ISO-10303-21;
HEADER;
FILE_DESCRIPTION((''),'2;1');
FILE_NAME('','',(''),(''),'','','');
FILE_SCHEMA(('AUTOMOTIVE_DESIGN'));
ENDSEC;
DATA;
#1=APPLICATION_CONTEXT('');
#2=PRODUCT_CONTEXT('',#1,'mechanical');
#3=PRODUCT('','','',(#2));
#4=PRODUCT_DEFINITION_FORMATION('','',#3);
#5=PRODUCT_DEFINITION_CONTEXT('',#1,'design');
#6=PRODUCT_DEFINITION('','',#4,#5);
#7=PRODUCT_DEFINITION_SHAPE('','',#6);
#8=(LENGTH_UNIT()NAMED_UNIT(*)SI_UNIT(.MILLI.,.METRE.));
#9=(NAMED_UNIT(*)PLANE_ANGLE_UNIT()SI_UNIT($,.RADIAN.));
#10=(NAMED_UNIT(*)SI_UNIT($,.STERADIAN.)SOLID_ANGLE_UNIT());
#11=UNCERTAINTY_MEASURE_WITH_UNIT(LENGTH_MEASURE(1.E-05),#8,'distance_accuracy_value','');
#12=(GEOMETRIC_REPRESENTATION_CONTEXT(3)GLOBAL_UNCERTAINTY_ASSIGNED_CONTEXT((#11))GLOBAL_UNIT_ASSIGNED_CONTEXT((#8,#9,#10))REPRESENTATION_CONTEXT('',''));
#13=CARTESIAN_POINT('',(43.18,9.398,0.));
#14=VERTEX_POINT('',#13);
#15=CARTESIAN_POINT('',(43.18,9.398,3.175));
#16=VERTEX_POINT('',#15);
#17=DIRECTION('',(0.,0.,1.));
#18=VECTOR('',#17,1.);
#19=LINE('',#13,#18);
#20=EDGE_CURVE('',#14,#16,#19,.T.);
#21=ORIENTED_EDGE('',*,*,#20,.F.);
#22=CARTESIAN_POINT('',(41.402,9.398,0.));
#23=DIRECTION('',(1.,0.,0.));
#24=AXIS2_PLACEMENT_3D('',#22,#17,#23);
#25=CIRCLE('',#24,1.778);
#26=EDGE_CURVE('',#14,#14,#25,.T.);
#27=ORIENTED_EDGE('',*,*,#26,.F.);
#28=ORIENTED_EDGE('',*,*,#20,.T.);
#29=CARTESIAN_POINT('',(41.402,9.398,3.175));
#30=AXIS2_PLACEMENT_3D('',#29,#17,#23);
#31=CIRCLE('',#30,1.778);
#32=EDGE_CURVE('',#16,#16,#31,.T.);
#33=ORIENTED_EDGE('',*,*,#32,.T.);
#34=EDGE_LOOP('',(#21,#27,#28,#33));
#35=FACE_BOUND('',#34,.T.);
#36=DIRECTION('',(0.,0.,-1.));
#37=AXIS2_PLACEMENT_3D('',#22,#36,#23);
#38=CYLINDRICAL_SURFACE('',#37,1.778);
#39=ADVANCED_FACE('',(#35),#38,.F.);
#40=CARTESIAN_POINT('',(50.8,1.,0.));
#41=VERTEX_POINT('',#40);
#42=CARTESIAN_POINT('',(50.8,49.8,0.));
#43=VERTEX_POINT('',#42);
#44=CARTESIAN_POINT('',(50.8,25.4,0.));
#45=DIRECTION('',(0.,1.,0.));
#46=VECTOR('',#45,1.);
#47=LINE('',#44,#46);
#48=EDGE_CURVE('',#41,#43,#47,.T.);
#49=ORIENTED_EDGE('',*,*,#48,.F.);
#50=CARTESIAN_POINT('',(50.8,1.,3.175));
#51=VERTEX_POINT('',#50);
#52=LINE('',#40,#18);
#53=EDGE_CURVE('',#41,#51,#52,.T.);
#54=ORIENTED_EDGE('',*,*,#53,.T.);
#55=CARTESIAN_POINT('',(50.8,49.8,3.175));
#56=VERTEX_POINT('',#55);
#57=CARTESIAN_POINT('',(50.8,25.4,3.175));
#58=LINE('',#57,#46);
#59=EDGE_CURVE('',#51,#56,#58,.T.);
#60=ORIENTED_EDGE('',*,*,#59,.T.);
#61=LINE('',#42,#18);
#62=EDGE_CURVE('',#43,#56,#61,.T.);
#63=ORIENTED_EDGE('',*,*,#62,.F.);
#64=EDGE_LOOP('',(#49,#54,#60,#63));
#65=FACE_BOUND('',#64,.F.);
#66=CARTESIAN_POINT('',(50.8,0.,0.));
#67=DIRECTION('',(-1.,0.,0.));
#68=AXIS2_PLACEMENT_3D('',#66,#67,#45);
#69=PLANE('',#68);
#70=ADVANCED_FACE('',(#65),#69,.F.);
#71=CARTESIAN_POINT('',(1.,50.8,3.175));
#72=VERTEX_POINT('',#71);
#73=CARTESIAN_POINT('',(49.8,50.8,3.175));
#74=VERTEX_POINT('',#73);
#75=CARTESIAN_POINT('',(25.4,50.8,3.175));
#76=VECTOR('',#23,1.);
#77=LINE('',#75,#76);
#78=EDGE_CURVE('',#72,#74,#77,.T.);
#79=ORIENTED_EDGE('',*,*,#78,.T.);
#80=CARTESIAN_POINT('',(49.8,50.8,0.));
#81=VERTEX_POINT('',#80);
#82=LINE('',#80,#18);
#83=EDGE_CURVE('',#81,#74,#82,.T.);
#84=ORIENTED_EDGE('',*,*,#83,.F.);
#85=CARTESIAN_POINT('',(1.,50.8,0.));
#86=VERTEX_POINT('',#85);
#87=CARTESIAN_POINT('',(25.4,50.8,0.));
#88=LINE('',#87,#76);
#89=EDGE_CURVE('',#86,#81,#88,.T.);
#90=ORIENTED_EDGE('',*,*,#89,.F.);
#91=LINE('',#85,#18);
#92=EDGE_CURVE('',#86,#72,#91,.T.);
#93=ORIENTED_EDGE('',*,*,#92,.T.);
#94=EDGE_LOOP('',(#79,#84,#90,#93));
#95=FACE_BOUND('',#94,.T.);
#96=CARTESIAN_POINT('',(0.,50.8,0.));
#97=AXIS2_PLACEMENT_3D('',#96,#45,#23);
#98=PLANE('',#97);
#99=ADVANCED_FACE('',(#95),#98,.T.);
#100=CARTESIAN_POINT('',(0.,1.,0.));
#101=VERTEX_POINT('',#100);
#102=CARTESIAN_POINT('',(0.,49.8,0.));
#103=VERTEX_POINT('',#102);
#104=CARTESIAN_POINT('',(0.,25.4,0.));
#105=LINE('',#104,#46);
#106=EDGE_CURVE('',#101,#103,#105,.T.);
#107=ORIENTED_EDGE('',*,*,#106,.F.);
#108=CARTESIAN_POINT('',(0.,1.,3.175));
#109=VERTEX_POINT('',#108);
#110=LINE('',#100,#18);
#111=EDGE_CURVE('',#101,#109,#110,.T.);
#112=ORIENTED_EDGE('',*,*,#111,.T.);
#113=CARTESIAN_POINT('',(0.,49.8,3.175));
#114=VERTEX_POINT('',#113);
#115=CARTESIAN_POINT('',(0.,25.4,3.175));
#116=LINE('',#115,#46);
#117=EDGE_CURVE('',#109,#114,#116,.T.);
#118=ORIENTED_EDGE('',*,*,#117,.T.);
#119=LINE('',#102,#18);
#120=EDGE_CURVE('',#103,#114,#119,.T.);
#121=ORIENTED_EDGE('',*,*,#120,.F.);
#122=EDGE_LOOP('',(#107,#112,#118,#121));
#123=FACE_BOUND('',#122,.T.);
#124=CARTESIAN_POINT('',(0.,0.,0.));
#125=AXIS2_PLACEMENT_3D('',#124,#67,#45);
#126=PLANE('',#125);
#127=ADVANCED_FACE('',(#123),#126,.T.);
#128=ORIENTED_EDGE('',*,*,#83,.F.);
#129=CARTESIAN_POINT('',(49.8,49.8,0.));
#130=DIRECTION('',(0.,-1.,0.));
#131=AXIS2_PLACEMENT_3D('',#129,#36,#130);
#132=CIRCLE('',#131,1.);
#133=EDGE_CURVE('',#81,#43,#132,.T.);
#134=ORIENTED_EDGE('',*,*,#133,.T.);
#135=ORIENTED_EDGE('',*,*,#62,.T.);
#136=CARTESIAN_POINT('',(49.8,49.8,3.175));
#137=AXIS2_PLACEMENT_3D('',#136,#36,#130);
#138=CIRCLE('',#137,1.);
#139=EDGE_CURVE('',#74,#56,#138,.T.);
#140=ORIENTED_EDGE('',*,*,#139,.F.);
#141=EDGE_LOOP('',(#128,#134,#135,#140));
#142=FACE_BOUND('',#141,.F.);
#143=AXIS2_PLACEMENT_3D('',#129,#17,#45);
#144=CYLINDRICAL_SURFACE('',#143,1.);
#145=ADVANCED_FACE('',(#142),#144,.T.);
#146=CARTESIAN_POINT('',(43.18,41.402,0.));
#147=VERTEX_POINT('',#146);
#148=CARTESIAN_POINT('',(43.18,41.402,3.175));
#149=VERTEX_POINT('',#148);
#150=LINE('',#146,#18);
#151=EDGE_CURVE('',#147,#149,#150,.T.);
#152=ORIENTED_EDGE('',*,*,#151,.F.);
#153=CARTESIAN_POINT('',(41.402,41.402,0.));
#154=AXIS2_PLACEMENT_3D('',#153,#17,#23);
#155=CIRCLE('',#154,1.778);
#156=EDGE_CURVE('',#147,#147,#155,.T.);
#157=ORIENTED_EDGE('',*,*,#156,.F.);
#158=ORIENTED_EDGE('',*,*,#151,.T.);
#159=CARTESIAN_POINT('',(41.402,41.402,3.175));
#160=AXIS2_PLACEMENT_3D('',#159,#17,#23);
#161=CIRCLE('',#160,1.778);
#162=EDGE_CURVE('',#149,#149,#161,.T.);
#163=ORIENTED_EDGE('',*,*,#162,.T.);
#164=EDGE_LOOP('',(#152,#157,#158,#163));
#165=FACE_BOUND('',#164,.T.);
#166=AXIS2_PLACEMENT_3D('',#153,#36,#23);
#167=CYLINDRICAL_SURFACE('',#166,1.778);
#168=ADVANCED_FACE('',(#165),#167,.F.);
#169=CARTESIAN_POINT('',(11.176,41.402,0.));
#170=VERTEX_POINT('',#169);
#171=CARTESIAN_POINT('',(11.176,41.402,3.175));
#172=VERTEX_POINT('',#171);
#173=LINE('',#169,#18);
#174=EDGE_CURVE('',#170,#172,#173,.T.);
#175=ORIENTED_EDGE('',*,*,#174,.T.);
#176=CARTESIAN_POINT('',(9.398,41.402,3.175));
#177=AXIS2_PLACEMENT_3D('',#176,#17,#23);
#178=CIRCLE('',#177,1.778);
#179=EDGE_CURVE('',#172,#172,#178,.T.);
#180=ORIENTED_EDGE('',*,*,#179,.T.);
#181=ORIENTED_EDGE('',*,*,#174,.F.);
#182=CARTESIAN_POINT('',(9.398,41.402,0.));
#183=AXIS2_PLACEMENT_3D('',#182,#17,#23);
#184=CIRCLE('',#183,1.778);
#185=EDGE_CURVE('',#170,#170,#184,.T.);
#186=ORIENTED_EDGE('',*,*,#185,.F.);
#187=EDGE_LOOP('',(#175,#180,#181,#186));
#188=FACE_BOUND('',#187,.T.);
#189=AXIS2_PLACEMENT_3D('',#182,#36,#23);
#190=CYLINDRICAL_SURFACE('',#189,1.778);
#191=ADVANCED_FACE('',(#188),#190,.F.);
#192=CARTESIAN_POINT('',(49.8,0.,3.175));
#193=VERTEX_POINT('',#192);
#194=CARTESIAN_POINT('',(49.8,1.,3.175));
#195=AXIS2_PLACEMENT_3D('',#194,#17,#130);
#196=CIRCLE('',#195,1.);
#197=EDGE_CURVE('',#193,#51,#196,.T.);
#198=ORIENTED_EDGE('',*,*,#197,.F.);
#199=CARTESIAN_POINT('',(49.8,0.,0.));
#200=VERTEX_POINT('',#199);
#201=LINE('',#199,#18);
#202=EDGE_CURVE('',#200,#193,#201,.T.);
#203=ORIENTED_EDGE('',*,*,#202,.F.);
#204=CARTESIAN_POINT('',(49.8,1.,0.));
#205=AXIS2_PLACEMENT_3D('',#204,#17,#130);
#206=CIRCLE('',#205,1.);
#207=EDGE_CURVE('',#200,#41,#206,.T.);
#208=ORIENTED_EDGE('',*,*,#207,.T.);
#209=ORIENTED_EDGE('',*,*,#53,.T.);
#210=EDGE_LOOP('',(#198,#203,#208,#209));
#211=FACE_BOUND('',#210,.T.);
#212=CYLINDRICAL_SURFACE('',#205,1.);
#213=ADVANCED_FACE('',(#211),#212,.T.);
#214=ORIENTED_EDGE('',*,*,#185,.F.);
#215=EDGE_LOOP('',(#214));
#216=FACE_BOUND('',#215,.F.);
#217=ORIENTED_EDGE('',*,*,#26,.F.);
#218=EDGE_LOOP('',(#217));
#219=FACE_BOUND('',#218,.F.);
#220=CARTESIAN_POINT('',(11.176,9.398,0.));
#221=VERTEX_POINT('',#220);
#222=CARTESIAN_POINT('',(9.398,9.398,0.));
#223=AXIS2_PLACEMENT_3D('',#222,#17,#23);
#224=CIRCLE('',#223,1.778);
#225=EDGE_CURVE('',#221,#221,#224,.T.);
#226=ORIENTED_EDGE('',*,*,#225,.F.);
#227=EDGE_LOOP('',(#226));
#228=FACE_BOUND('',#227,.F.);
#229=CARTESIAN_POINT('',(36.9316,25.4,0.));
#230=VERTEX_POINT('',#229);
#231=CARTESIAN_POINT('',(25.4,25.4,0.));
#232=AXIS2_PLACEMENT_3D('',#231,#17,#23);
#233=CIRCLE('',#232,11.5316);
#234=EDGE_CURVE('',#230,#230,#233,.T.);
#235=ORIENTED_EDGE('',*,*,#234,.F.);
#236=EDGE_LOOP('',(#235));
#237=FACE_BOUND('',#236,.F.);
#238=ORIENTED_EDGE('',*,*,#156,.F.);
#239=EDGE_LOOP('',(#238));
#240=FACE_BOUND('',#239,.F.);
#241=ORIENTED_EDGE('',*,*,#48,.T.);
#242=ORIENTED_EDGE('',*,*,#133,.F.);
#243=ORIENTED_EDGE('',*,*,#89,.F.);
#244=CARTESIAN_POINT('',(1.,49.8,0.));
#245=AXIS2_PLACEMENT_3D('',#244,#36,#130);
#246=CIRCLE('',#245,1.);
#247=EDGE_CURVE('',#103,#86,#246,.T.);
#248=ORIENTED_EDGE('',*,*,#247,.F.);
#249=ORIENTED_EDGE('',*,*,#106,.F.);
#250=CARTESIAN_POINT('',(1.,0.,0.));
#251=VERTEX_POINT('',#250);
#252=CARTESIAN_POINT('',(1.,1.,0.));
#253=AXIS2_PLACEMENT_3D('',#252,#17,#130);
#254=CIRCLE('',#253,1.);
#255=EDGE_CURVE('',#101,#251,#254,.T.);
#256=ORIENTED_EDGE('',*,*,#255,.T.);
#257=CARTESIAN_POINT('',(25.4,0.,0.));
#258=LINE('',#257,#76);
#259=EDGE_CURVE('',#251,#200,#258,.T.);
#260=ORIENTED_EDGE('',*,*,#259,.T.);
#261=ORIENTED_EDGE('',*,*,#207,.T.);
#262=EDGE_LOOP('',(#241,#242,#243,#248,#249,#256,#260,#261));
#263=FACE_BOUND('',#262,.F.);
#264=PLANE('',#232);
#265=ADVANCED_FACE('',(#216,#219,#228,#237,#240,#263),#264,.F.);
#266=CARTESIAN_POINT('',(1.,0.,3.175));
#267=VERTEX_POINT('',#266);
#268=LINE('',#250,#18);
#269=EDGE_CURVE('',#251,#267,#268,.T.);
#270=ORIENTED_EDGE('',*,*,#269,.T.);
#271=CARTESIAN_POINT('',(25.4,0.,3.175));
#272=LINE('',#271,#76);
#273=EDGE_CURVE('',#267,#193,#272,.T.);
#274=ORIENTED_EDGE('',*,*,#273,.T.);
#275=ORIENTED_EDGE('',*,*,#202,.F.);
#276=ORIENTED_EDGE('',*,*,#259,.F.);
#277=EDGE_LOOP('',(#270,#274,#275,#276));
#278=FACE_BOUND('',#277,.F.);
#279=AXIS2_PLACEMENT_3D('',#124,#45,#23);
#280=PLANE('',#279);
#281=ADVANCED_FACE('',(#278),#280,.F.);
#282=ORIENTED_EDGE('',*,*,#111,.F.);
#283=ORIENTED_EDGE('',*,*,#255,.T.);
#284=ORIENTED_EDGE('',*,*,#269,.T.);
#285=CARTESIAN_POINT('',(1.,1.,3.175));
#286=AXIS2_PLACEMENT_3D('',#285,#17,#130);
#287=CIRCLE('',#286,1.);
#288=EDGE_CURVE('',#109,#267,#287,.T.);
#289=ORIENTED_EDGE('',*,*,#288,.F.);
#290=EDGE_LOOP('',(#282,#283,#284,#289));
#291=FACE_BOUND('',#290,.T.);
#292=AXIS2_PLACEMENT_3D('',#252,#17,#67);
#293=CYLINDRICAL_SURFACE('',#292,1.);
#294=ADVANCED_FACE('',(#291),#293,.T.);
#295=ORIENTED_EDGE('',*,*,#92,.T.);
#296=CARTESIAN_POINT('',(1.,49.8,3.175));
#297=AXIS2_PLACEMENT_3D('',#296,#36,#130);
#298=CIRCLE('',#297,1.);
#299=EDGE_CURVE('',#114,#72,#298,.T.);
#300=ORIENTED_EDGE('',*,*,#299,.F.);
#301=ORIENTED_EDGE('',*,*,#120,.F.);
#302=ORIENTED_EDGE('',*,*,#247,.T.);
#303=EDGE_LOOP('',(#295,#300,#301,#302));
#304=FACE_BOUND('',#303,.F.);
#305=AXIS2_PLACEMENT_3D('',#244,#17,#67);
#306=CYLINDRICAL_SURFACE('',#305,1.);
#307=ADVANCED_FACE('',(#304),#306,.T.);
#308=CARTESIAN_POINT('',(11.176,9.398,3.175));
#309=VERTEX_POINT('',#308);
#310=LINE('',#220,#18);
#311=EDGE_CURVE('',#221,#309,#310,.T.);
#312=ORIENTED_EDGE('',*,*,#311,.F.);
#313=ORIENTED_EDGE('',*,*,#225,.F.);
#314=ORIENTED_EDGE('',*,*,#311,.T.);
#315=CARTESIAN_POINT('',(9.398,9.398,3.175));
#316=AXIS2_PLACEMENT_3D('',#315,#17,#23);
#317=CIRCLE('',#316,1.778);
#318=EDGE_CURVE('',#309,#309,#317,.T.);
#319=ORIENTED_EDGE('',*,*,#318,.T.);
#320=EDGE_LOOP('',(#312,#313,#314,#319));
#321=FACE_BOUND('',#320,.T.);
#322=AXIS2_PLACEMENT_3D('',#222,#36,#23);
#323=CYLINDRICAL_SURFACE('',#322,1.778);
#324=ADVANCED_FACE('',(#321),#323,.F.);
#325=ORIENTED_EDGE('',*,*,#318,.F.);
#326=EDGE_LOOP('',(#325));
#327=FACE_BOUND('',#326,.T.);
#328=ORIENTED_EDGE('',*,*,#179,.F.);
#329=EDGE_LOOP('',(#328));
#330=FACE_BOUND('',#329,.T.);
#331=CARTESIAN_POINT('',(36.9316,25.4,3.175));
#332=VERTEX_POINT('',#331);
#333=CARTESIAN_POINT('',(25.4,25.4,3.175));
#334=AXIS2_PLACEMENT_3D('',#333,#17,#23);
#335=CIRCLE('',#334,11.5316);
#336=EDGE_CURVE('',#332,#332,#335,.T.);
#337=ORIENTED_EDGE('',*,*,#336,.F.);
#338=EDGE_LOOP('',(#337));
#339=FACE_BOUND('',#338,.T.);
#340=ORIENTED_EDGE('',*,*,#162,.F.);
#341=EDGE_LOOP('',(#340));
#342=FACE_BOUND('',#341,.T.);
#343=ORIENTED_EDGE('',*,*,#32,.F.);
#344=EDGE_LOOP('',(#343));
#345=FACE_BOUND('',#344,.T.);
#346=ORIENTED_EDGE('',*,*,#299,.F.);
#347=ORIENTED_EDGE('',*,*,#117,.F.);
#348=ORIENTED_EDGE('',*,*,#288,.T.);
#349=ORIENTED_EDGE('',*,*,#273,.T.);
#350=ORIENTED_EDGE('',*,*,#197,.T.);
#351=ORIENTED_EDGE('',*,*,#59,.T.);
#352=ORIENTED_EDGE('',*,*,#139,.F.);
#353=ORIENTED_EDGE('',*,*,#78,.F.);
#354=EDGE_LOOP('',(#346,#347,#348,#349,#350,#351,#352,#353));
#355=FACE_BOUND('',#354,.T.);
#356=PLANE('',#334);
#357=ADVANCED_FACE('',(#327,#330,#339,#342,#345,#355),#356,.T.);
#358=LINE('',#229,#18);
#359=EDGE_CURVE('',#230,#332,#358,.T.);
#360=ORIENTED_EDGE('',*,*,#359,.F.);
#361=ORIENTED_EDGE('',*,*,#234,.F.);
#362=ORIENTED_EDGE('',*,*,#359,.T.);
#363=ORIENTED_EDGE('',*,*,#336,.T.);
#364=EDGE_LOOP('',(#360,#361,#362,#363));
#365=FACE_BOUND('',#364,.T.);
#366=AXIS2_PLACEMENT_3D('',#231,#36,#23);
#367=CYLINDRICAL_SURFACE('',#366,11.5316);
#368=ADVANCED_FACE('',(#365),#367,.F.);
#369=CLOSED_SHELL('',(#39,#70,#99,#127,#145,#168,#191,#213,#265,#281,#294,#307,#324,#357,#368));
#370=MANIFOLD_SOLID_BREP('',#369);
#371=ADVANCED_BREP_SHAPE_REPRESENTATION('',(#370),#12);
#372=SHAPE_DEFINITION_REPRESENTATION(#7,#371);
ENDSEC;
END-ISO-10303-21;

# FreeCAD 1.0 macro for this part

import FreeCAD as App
import Part
import Sketcher

V = App.Vector
Q = App.Units.Quantity


def edges_at(feature, points):
    """Names of the edges that pass closest to the given points."""
    edges = feature.Shape.Edges
    near = lambda p: min(range(len(edges)), key=lambda i: edges[i].distToShape(Part.Vertex(*p))[0])
    return sorted({f"Edge{near(p) + 1}" for p in points})

doc = App.newDocument("Part")
params = doc.addObject("Spreadsheet::Sheet", "Params")
for row, (alias, value) in enumerate([
    ("sketch1_diameter", "0.14 in"),
    ("sketch1_width", "2 in"),
    ("sketch1_diameter2", "0.908 in"),
    ("pad1_length", "0.125 in"),
    ("fillet_radius", "1 mm"),
], start=1):
    params.set(f"A{row}", alias)
    params.set(f"B{row}", "=" + value)
    params.setAlias(f"B{row}", alias)

body = doc.addObject("PartDesign::Body", "Body")

sketch1 = body.newObject("Sketcher::SketchObject", "Sketch")
sketch1.AttachmentSupport = (doc.getObject("XY_Plane"), [""])
sketch1.MapMode = "FlatFace"
sketch1.addGeometry([
    Part.LineSegment(V(0, 50.8, 0), V(0, 0, 0)),
    Part.LineSegment(V(0, 0, 0), V(50.8, 0, 0)),
    Part.LineSegment(V(50.8, 0, 0), V(50.8, 50.8, 0)),
    Part.LineSegment(V(50.8, 50.8, 0), V(0, 50.8, 0)),
    Part.Circle(V(9.4, 9.4, 0), V(0, 0, 1), 1.8),
    Part.Circle(V(25.4, 25.4, 0), V(0, 0, 1), 11.5),
    Part.Circle(V(41.4, 9.4, 0), V(0, 0, 1), 1.8),
    Part.Circle(V(9.4, 41.4, 0), V(0, 0, 1), 1.8),
    Part.Circle(V(41.4, 41.4, 0), V(0, 0, 1), 1.8),
], False)
sketch1.addConstraint([
    Sketcher.Constraint("Coincident", 0, 2, 1, 1),
    Sketcher.Constraint("Coincident", 1, 2, 2, 1),
    Sketcher.Constraint("Coincident", 2, 2, 3, 1),
    Sketcher.Constraint("Coincident", 3, 2, 0, 1),
    Sketcher.Constraint("Vertical", 0),
    Sketcher.Constraint("Horizontal", 1),
    Sketcher.Constraint("Vertical", 2),
    Sketcher.Constraint("Horizontal", 3),
    Sketcher.Constraint("Coincident", 0, 2, -1, 1),
    Sketcher.Constraint("Equal", 4, 6),
    Sketcher.Constraint("Equal", 6, 7),
    Sketcher.Constraint("Equal", 7, 8),
    Sketcher.Constraint("Horizontal", 4, 3, 6, 3),
    Sketcher.Constraint("Horizontal", 7, 3, 8, 3),
    Sketcher.Constraint("Vertical", 4, 3, 7, 3),
    Sketcher.Constraint("Vertical", 6, 3, 8, 3),
    Sketcher.Constraint("Equal", 3, 0),
    Sketcher.Constraint("Diameter", 4, Q("0.14 in")),
    Sketcher.Constraint("DistanceX", 1, 1, 1, 2, Q("2 in")),
    Sketcher.Constraint("Diameter", 5, Q("0.908 in")),
    Sketcher.Constraint("DistanceX", -1, 1, 5, 3, Q("1 in")),
    Sketcher.Constraint("DistanceY", -1, 1, 5, 3, Q("1 in")),
    Sketcher.Constraint("DistanceX", -1, 1, 4, 3, Q("0.37 in")),
    Sketcher.Constraint("DistanceY", -1, 1, 4, 3, Q("0.37 in")),
    Sketcher.Constraint("DistanceX", -1, 1, 6, 3, Q("1.63 in")),
    Sketcher.Constraint("DistanceY", -1, 1, 7, 3, Q("1.63 in")),
])
sketch1.setExpression("Constraints[17]", "Params.sketch1_diameter")
sketch1.setExpression("Constraints[18]", "Params.sketch1_width")
sketch1.setExpression("Constraints[19]", "Params.sketch1_diameter2")
pad1 = body.newObject("PartDesign::Pad", "Pad")
pad1.Profile = sketch1
pad1.setExpression("Length", "Params.pad1_length")
doc.recompute()

fillet = body.newObject("PartDesign::Fillet", "Fillet")
fillet.Base = (pad1, edges_at(pad1, [
    (50.8, 0, 1.587),
    (50.8, 50.8, 1.587),
    (0, 50.8, 1.587),
    (0, 0, 1.587),
]))
fillet.setExpression("Radius", "Params.fillet_radius")

doc.recompute()
